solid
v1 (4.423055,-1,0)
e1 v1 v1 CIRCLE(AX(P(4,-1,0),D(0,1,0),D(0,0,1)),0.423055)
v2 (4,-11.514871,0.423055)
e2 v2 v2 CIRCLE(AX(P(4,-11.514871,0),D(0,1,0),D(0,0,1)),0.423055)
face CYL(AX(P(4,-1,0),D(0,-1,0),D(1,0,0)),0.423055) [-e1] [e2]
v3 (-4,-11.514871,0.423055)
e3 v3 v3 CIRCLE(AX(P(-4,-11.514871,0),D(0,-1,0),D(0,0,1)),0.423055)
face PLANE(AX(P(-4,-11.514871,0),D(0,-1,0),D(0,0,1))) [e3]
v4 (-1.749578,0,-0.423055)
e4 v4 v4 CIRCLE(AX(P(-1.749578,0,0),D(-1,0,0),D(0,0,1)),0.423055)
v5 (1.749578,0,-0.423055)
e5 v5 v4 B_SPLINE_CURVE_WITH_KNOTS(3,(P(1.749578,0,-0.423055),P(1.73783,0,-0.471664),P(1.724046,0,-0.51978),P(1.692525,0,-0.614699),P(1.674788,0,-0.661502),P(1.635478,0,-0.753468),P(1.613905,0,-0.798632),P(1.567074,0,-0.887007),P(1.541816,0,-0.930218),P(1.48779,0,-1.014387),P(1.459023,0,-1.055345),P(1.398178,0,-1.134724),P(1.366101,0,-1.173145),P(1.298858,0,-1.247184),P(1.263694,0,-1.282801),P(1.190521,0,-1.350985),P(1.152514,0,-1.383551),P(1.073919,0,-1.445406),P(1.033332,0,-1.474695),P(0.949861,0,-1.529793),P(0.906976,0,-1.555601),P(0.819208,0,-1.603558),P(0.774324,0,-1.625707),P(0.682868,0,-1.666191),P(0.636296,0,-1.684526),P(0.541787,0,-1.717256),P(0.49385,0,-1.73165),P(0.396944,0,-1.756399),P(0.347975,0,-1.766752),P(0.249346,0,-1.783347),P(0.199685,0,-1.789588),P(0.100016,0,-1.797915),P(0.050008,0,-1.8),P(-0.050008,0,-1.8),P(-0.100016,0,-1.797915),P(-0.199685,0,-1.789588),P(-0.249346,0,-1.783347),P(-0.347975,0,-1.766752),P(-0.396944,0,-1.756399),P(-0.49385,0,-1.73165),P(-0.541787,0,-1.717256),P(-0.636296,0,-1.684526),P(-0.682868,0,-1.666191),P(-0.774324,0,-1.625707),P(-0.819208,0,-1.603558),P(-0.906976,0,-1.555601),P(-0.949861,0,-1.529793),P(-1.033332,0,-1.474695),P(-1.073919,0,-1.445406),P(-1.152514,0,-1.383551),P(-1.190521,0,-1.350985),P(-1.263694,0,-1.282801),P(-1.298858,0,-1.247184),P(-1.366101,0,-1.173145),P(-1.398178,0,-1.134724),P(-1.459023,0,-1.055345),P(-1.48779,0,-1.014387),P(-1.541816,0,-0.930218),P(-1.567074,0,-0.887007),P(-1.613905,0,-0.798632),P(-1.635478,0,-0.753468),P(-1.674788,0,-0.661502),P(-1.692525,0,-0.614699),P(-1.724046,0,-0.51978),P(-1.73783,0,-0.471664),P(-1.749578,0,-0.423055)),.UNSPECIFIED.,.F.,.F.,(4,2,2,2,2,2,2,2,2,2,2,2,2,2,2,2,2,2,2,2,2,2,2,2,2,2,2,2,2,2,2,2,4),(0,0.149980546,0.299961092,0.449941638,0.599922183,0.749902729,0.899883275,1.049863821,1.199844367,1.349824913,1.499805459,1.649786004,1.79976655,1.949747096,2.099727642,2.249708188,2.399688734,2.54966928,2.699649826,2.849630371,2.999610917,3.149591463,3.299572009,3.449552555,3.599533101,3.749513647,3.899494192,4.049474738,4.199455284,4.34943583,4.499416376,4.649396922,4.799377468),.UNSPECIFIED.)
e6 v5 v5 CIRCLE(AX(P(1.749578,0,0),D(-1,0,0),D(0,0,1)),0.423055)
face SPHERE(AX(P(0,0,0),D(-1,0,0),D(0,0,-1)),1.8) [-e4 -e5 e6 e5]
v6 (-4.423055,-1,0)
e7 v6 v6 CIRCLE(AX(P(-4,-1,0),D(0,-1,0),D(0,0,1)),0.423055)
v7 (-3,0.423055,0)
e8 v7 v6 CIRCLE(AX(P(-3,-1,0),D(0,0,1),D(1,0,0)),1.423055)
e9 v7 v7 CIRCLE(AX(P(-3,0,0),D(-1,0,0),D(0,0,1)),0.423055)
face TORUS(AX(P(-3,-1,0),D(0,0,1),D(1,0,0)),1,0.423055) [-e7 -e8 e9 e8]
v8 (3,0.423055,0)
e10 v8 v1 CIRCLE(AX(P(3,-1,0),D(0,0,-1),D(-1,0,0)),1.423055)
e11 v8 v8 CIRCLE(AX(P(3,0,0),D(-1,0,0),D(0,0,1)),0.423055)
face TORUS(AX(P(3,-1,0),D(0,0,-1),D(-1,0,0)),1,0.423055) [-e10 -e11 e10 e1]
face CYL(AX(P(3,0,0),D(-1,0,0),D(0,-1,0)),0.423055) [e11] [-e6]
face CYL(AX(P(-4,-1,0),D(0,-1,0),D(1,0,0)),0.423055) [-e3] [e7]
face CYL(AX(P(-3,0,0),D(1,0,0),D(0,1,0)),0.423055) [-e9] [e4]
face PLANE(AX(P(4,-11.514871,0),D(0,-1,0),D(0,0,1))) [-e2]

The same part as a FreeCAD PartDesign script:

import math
import FreeCAD as App
import Part
import Sketcher

V = App.Vector

doc = App.newDocument("Part")
params = doc.addObject("Spreadsheet::Sheet", "Params")
for row, (alias, value) in enumerate([
    ("sketch1_radius", "1.8 mm"),
    ("revolution_angle", "360 deg"),
    ("sketch3_radius", "1 mm"),
    ("sketch3_width", "3 mm"),
], start=1):
    params.set(f"A{row}", alias)
    params.set(f"B{row}", "=" + value)
    params.setAlias(f"B{row}", alias)

body = doc.addObject("PartDesign::Body", "Body")

# Sketch on XZ plane
sketch1 = body.newObject("Sketcher::SketchObject", "Sketch")
sketch1.AttachmentSupport = (doc.getObject("XZ_Plane"), [""])
sketch1.MapMode = "FlatFace"
sketch1.addGeometry(Part.ArcOfCircle(Part.Circle(V(0, 0, 0), V(0, 0, 1), 1.8), math.radians(-166.406578), math.radians(-13.593422)), False)
sketch1.addGeometry(Part.LineSegment(V(-1.749578, -0.423055, 0), V(-1.749578, 0, 0)), False)
sketch1.addGeometry(Part.LineSegment(V(-1.749578, 0, 0), V(1.749578, 0, 0)), False)
sketch1.addGeometry(Part.LineSegment(V(1.749578, 0, 0), V(1.749578, -0.423055, 0)), False)
sketch1.addConstraint(Sketcher.Constraint("Coincident", 0, 1, 1, 1))
sketch1.addConstraint(Sketcher.Constraint("Coincident", 1, 2, 2, 1))
sketch1.addConstraint(Sketcher.Constraint("Coincident", 2, 2, 3, 1))
sketch1.addConstraint(Sketcher.Constraint("Coincident", 3, 2, 0, 2))
sketch1.addConstraint(Sketcher.Constraint("Vertical", 1))
sketch1.addConstraint(Sketcher.Constraint("Horizontal", 2))
sketch1.addConstraint(Sketcher.Constraint("Vertical", 3))
sketch1.addConstraint(Sketcher.Constraint("Coincident", 0, 3, -1, 1))
sketch1.addConstraint(Sketcher.Constraint("Symmetric", 1, 2, 2, 2, -1, 1))
sketch1.addConstraint(Sketcher.Constraint("Radius", 0, 1.8))
sketch1.addConstraint(Sketcher.Constraint("DistanceX", 2, 1, 2, 2, 3.499157))
sketch1.setExpression("Constraints[9]", "Params.sketch1_radius")
revolution = body.newObject("PartDesign::Revolution", "Revolution")
revolution.Profile = sketch1
revolution.ReferenceAxis = (sketch1, ["H_Axis"])
revolution.setExpression("Angle", "Params.revolution_angle")

# Sketch on YZ plane
sketch2 = body.newObject("Sketcher::SketchObject", "Sketch001")
sketch2.AttachmentSupport = (doc.getObject("YZ_Plane"), [""])
sketch2.MapMode = "FlatFace"
sketch2.AttachmentOffset = App.Placement(V(0, 0, -1.749578), App.Rotation())
sketch2.addGeometry(Part.Circle(V(0, 0, 0), V(0, 0, 1), 0.423055), False)
sketch2.addConstraint(Sketcher.Constraint("Coincident", 0, 3, -1, 1))
sketch2.addConstraint(Sketcher.Constraint("Diameter", 0, 0.84611))

# Sketch on XY plane
sketch3 = body.newObject("Sketcher::SketchObject", "Sketch002")
sketch3.AttachmentSupport = (doc.getObject("XY_Plane"), [""])
sketch3.MapMode = "FlatFace"
sketch3.addGeometry(Part.LineSegment(V(0, 0, 0), V(-3, 0, 0)), False)
sketch3.addGeometry(Part.ArcOfCircle(Part.Circle(V(-3, -1, 0), V(0, 0, 1), 1), math.radians(90), math.radians(180)), False)
sketch3.addGeometry(Part.LineSegment(V(-4, -1, 0), V(-4, -11.514871, 0)), False)
sketch3.addConstraint(Sketcher.Constraint("Tangent", 0, 2, 1, 1))
sketch3.addConstraint(Sketcher.Constraint("Tangent", 1, 2, 2, 1))
sketch3.addConstraint(Sketcher.Constraint("Horizontal", 0))
sketch3.addConstraint(Sketcher.Constraint("Vertical", 2))
sketch3.addConstraint(Sketcher.Constraint("Coincident", 0, 1, -1, 1))
sketch3.addConstraint(Sketcher.Constraint("Radius", 1, 1.0))
sketch3.addConstraint(Sketcher.Constraint("DistanceX", 0, 2, 0, 1, 3.0))
sketch3.addConstraint(Sketcher.Constraint("DistanceY", 2, 2, 2, 1, 10.514871))
sketch3.setExpression("Constraints[5]", "Params.sketch3_radius")
sketch3.setExpression("Constraints[6]", "Params.sketch3_width")
doc.recompute()

additivepipe = body.newObject("PartDesign::AdditivePipe", "AdditivePipe")
additivepipe.Profile = sketch2
additivepipe.Spine = (sketch3, ["Edge1", "Edge2", "Edge3"])
doc.recompute()

mirrored = body.newObject("PartDesign::Mirrored", "Mirrored")
mirrored.Originals = [additivepipe]
mirrored.MirrorPlane = (doc.getObject("YZ_Plane"), [""])
body.Tip = mirrored

doc.recompute()
